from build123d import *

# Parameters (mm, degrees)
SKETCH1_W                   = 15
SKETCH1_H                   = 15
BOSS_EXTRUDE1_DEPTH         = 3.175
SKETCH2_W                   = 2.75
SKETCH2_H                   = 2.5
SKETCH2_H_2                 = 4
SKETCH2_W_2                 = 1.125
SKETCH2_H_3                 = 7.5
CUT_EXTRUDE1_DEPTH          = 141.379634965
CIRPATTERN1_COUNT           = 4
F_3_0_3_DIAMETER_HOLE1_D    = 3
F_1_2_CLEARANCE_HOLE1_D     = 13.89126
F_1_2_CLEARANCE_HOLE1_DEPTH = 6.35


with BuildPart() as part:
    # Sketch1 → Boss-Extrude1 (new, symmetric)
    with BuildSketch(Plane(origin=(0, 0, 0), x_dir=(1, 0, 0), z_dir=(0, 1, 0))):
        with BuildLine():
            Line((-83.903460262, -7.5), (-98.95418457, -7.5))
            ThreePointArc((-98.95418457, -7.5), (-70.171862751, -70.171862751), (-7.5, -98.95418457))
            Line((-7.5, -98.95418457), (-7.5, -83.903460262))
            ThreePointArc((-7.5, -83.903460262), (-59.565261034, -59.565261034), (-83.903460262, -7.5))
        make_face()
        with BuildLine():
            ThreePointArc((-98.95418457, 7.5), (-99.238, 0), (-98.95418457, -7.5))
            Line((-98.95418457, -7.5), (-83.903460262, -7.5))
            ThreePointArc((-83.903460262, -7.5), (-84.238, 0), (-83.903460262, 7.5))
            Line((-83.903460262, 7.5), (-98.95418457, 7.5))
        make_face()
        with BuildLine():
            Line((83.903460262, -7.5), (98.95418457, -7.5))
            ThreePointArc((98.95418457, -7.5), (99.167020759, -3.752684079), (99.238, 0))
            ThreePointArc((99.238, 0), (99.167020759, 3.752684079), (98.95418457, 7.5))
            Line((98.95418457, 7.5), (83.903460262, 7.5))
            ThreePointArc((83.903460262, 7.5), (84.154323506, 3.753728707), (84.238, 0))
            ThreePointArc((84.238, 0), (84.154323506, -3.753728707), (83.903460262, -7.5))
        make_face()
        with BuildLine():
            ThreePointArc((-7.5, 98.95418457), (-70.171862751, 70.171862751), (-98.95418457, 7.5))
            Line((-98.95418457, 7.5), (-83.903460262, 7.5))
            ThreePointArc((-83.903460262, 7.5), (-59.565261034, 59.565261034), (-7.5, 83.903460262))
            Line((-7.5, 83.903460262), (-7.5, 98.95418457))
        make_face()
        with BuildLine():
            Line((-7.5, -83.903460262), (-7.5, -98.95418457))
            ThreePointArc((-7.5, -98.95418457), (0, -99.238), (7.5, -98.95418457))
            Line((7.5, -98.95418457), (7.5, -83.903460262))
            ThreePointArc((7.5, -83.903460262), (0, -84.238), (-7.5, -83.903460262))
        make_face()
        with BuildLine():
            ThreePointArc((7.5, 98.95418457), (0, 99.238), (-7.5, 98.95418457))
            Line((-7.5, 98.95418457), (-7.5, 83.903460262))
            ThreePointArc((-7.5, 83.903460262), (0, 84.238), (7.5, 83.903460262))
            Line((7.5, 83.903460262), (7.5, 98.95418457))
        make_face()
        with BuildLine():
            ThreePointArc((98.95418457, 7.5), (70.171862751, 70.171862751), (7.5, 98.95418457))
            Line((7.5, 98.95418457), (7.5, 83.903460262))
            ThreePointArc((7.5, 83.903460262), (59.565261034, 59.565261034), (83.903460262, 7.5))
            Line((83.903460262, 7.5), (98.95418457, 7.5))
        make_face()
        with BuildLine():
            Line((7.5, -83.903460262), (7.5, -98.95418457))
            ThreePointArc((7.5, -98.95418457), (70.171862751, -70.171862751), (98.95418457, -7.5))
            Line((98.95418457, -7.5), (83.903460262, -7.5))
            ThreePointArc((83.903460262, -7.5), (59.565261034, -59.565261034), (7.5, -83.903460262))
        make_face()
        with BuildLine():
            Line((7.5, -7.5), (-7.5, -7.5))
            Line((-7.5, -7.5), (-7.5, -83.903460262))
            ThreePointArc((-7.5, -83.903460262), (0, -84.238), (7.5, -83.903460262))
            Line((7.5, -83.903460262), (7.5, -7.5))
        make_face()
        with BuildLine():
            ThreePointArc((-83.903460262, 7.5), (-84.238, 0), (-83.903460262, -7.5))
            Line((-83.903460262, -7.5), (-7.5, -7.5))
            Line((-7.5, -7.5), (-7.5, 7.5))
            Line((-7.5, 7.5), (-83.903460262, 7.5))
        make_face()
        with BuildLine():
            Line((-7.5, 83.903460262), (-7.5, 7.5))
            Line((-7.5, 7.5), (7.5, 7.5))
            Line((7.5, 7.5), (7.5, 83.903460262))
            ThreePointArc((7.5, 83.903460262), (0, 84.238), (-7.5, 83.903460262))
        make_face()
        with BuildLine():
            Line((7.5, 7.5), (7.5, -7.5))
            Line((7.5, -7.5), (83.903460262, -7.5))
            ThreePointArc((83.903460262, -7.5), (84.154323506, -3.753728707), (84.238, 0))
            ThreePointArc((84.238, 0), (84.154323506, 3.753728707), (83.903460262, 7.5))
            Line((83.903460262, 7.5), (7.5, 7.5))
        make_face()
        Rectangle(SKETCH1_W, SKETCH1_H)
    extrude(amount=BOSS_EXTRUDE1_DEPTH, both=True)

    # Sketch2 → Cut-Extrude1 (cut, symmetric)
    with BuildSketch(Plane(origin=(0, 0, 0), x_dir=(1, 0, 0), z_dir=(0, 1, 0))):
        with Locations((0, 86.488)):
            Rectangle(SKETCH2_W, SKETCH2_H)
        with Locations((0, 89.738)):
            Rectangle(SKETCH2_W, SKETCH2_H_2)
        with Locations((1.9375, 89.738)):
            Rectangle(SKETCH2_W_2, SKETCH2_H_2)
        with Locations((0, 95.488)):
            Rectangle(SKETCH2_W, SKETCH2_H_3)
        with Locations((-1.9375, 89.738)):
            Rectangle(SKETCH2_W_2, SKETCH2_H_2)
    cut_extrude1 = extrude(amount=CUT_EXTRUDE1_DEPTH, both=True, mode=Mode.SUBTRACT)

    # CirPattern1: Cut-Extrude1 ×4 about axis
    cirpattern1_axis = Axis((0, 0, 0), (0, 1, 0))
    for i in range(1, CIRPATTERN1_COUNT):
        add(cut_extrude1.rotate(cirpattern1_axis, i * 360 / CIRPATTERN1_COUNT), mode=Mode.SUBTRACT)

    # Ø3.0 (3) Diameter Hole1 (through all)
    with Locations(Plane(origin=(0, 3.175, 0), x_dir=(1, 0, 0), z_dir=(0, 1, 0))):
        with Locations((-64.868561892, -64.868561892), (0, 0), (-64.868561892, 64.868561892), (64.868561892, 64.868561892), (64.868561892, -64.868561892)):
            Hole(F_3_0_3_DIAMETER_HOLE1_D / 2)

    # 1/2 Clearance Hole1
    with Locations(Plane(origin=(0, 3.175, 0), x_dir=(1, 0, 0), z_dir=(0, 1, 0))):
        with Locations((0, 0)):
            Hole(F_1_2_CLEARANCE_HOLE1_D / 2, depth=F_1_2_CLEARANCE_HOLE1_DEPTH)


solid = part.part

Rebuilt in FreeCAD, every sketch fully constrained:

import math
import FreeCAD as App
import Part
import Sketcher


def add_polygon(sketch, points):
    """Adds a closed chain of lines whose ends are joined by coincident constraints."""
    first, n = sketch.GeometryCount, len(points)
    for a, b in zip(points, points[1:] + points[:1]):
        sketch.addGeometry(Part.LineSegment(App.Vector(*a, 0), App.Vector(*b, 0)), False)
    for i in range(n):
        sketch.addConstraint(Sketcher.Constraint("Coincident", first + i, 2, first + (i + 1) % n, 1))

doc = App.newDocument("Part")
body = doc.addObject("PartDesign::Body", "Body")

# Sketch on XZ plane
sketch1 = body.newObject("Sketcher::SketchObject", "Sketch")
sketch1.AttachmentSupport = (doc.getObject("XZ_Plane"), [""])
sketch1.MapMode = "FlatFace"
sketch1.addGeometry(Part.ArcOfCircle(Part.Circle(App.Vector(0, 0, 0), App.Vector(0, 0, 1), 99), math.radians(94), math.radians(176)), False)
sketch1.addGeometry(Part.ArcOfCircle(Part.Circle(App.Vector(0, 0, 0), App.Vector(0, 0, 1), 99), math.radians(85.67), math.radians(94.33)), False)
sketch1.addGeometry(Part.ArcOfCircle(Part.Circle(App.Vector(0, 0, 0), App.Vector(0, 0, 1), 99), math.radians(4), math.radians(86)), False)
sketch1.addGeometry(Part.ArcOfCircle(Part.Circle(App.Vector(0, 0, 0), App.Vector(0, 0, 1), 99), math.radians(0), math.radians(4.33)), False)
sketch1.addGeometry(Part.ArcOfCircle(Part.Circle(App.Vector(0, 0, 0), App.Vector(0, 0, 1), 99), math.radians(-4.33), math.radians(0)), False)
sketch1.addGeometry(Part.ArcOfCircle(Part.Circle(App.Vector(0, 0, 0), App.Vector(0, 0, 1), 99), math.radians(-86), math.radians(-4)), False)
sketch1.addGeometry(Part.ArcOfCircle(Part.Circle(App.Vector(0, 0, 0), App.Vector(0, 0, 1), 99), math.radians(-94.33), math.radians(-85.67)), False)
sketch1.addGeometry(Part.ArcOfCircle(Part.Circle(App.Vector(0, 0, 0), App.Vector(0, 0, 1), 99), math.radians(-176), math.radians(-94)), False)
sketch1.addGeometry(Part.ArcOfCircle(Part.Circle(App.Vector(0, 0, 0), App.Vector(0, 0, 1), 99), math.radians(175.67), math.radians(184.33)), False)
sketch1.addGeometry(Part.LineSegment(App.Vector(-84, 8, 0), App.Vector(-8, 8, 0)), False)
sketch1.addGeometry(Part.LineSegment(App.Vector(-8, 8, 0), App.Vector(-8, 84, 0)), False)
sketch1.addGeometry(Part.ArcOfCircle(Part.Circle(App.Vector(0, 0, 0), App.Vector(0, 0, 1), 84), math.radians(95), math.radians(175)), False)
sketch1.addGeometry(Part.LineSegment(App.Vector(8, 84, 0), App.Vector(8, 8, 0)), False)
sketch1.addGeometry(Part.LineSegment(App.Vector(8, 8, 0), App.Vector(84, 8, 0)), False)
sketch1.addGeometry(Part.ArcOfCircle(Part.Circle(App.Vector(0, 0, 0), App.Vector(0, 0, 1), 84), math.radians(5), math.radians(85)), False)
sketch1.addGeometry(Part.LineSegment(App.Vector(-8, -84, 0), App.Vector(-8, -8, 0)), False)
sketch1.addGeometry(Part.LineSegment(App.Vector(-8, -8, 0), App.Vector(-84, -8, 0)), False)
sketch1.addGeometry(Part.ArcOfCircle(Part.Circle(App.Vector(0, 0, 0), App.Vector(0, 0, 1), 84), math.radians(-175), math.radians(-95)), False)
sketch1.addGeometry(Part.LineSegment(App.Vector(84, -8, 0), App.Vector(8, -8, 0)), False)
sketch1.addGeometry(Part.LineSegment(App.Vector(8, -8, 0), App.Vector(8, -84, 0)), False)
sketch1.addGeometry(Part.ArcOfCircle(Part.Circle(App.Vector(0, 0, 0), App.Vector(0, 0, 1), 84), math.radians(-85), math.radians(-5)), False)
sketch1.addConstraint(Sketcher.Constraint("Tangent", 0, 1, 1, 2))
sketch1.addConstraint(Sketcher.Constraint("Tangent", 1, 1, 2, 2))
sketch1.addConstraint(Sketcher.Constraint("Tangent", 2, 1, 3, 2))
sketch1.addConstraint(Sketcher.Constraint("Tangent", 3, 1, 4, 2))
sketch1.addConstraint(Sketcher.Constraint("Tangent", 4, 1, 5, 2))
sketch1.addConstraint(Sketcher.Constraint("Tangent", 5, 1, 6, 2))
sketch1.addConstraint(Sketcher.Constraint("Tangent", 6, 1, 7, 2))
sketch1.addConstraint(Sketcher.Constraint("Tangent", 7, 1, 8, 2))
sketch1.addConstraint(Sketcher.Constraint("Tangent", 8, 1, 0, 2))
sketch1.addConstraint(Sketcher.Constraint("Coincident", 9, 2, 10, 1))
sketch1.addConstraint(Sketcher.Constraint("Coincident", 10, 2, 11, 1))
sketch1.addConstraint(Sketcher.Constraint("Coincident", 11, 2, 9, 1))
sketch1.addConstraint(Sketcher.Constraint("Coincident", 12, 2, 13, 1))
sketch1.addConstraint(Sketcher.Constraint("Coincident", 13, 2, 14, 1))
sketch1.addConstraint(Sketcher.Constraint("Coincident", 14, 2, 12, 1))
sketch1.addConstraint(Sketcher.Constraint("Coincident", 15, 2, 16, 1))
sketch1.addConstraint(Sketcher.Constraint("Coincident", 16, 2, 17, 1))
sketch1.addConstraint(Sketcher.Constraint("Coincident", 17, 2, 15, 1))
sketch1.addConstraint(Sketcher.Constraint("Coincident", 18, 2, 19, 1))
sketch1.addConstraint(Sketcher.Constraint("Coincident", 19, 2, 20, 1))
sketch1.addConstraint(Sketcher.Constraint("Coincident", 20, 2, 18, 1))
sketch1.addConstraint(Sketcher.Constraint("Horizontal", 9))
sketch1.addConstraint(Sketcher.Constraint("Vertical", 10))
sketch1.addConstraint(Sketcher.Constraint("Vertical", 12))
sketch1.addConstraint(Sketcher.Constraint("Horizontal", 13))
sketch1.addConstraint(Sketcher.Constraint("Vertical", 15))
sketch1.addConstraint(Sketcher.Constraint("Horizontal", 16))
sketch1.addConstraint(Sketcher.Constraint("Horizontal", 18))
sketch1.addConstraint(Sketcher.Constraint("Vertical", 19))
sketch1.addConstraint(Sketcher.Constraint("Coincident", 0, 3, -1, 1))
sketch1.addConstraint(Sketcher.Constraint("Coincident", 2, 3, -1, 1))
sketch1.addConstraint(Sketcher.Constraint("Coincident", 4, 3, -1, 1))
sketch1.addConstraint(Sketcher.Constraint("Coincident", 6, 3, -1, 1))
sketch1.addConstraint(Sketcher.Constraint("Coincident", 11, 3, -1, 1))
sketch1.addConstraint(Sketcher.Constraint("Coincident", 14, 3, -1, 1))
sketch1.addConstraint(Sketcher.Constraint("Coincident", 17, 3, -1, 1))
sketch1.addConstraint(Sketcher.Constraint("Coincident", 20, 3, -1, 1))
sketch1.addConstraint(Sketcher.Constraint("Equal", 11, 14))
sketch1.addConstraint(Sketcher.Constraint("Equal", 14, 17))
sketch1.addConstraint(Sketcher.Constraint("Equal", 17, 20))
sketch1.addConstraint(Sketcher.Constraint("Symmetric", 12, 2, 15, 2, -1, 1))
sketch1.addConstraint(Sketcher.Constraint("Symmetric", 9, 2, 18, 2, -1, 1))
sketch1.addConstraint(Sketcher.Constraint("Symmetric", 9, 2, 12, 2, -2))
sketch1.addConstraint(Sketcher.Constraint("PointOnObject", 3, 1, -1))
sketch1.addConstraint(Sketcher.Constraint("Horizontal", 0, 1, 1, 1))
sketch1.addConstraint(Sketcher.Constraint("Horizontal", 5, 1, 6, 1))
sketch1.addConstraint(Sketcher.Constraint("Horizontal", 4, 1, 7, 1))
sketch1.addConstraint(Sketcher.Constraint("Horizontal", 2, 1, 8, 1))
sketch1.addConstraint(Sketcher.Constraint("Horizontal", 8, 1, 9, 2))
sketch1.addConstraint(Sketcher.Constraint("Horizontal", 7, 1, 15, 2))
sketch1.addConstraint(Sketcher.Constraint("Vertical", 1, 1, 5, 1))
sketch1.addConstraint(Sketcher.Constraint("Vertical", 6, 1, 9, 2))
sketch1.addConstraint(Sketcher.Constraint("Equal", 18, 10))
sketch1.addConstraint(Sketcher.Constraint("Radius", 0, 99.238))
sketch1.addConstraint(Sketcher.Constraint("Radius", 11, 84.238))
sketch1.addConstraint(Sketcher.Constraint("DistanceX", 0, 1, 1, 1, 15.0))
pad1 = body.newObject("PartDesign::Pad", "Pad")
pad1.Profile = sketch1
pad1.Length = 6.35
pad1.Midplane = True

# Sketch on XZ plane
sketch2 = body.newObject("Sketcher::SketchObject", "Sketch001")
sketch2.AttachmentSupport = (doc.getObject("XZ_Plane"), [""])
sketch2.MapMode = "FlatFace"
add_polygon(sketch2, [(-1.4, -85.2), (1.4, -85.2), (1.4, -87.7), (2.5, -87.7), (2.5, -91.7), (1.4, -91.7), (1.4, -99.2), (-1.4, -99.2), (-1.4, -91.7), (-2.5, -91.7), (-2.5, -87.7), (-1.4, -87.7)])  # lines 0-11
sketch2.addConstraint(Sketcher.Constraint("Horizontal", 0))
sketch2.addConstraint(Sketcher.Constraint("Vertical", 1))
sketch2.addConstraint(Sketcher.Constraint("Horizontal", 2))
sketch2.addConstraint(Sketcher.Constraint("Vertical", 3))
sketch2.addConstraint(Sketcher.Constraint("Horizontal", 4))
sketch2.addConstraint(Sketcher.Constraint("Vertical", 5))
sketch2.addConstraint(Sketcher.Constraint("Horizontal", 6))
sketch2.addConstraint(Sketcher.Constraint("Vertical", 7))
sketch2.addConstraint(Sketcher.Constraint("Horizontal", 8))
sketch2.addConstraint(Sketcher.Constraint("Vertical", 9))
sketch2.addConstraint(Sketcher.Constraint("Horizontal", 10))
sketch2.addConstraint(Sketcher.Constraint("Vertical", 11))
sketch2.addConstraint(Sketcher.Constraint("Symmetric", 4, 2, 7, 2, -2))
sketch2.addConstraint(Sketcher.Constraint("Symmetric", 2, 2, 9, 2, -2))
sketch2.addConstraint(Sketcher.Constraint("Vertical", 1, 2, 4, 2))
sketch2.addConstraint(Sketcher.Constraint("Vertical", 7, 2, 10, 2))
sketch2.addConstraint(Sketcher.Constraint("DistanceY", 3, 2, 3, 1, 4.0))
sketch2.addConstraint(Sketcher.Constraint("DistanceY", 1, 2, 1, 1, 2.5))
sketch2.addConstraint(Sketcher.Constraint("DistanceY", 5, 2, 5, 1, 7.5))
sketch2.addConstraint(Sketcher.Constraint("DistanceX", 8, 2, 3, 2, 5.0))
sketch2.addConstraint(Sketcher.Constraint("DistanceX", 0, 1, 0, 2, 2.75))
sketch2.addConstraint(Sketcher.Constraint("DistanceY", 0, 2, -1, 1, 85.238))
pocket1 = body.newObject("PartDesign::Pocket", "Pocket")
pocket1.Profile = sketch2
pocket1.Length = 282.75927
pocket1.Midplane = True
doc.recompute()

polarpattern = body.newObject("PartDesign::PolarPattern", "PolarPattern")
polarpattern.Originals = [pocket1]
polarpattern.Axis = (doc.getObject("Y_Axis"), [""])
polarpattern.Angle = 360
polarpattern.Occurrences = 4
body.Tip = polarpattern

# Sketch on XZ plane
sketch3 = body.newObject("Sketcher::SketchObject", "Sketch002")
sketch3.AttachmentSupport = (doc.getObject("XZ_Plane"), [""])
sketch3.MapMode = "FlatFace"
sketch3.AttachmentOffset = App.Placement(App.Vector(0, 0, -3.175), App.Rotation())
sketch3.addGeometry(Part.Circle(App.Vector(-64.9, 64.9, 0), App.Vector(0, 0, 1), 1.5), False)
sketch3.addGeometry(Part.Circle(App.Vector(0, 0, 0), App.Vector(0, 0, 1), 1.5), False)
sketch3.addGeometry(Part.Circle(App.Vector(-64.9, -64.9, 0), App.Vector(0, 0, 1), 1.5), False)
sketch3.addGeometry(Part.Circle(App.Vector(64.9, -64.9, 0), App.Vector(0, 0, 1), 1.5), False)
sketch3.addGeometry(Part.Circle(App.Vector(64.9, 64.9, 0), App.Vector(0, 0, 1), 1.5), False)
sketch3.addConstraint(Sketcher.Constraint("Coincident", 1, 3, -1, 1))
sketch3.addConstraint(Sketcher.Constraint("Equal", 0, 1))
sketch3.addConstraint(Sketcher.Constraint("Equal", 1, 2))
sketch3.addConstraint(Sketcher.Constraint("Equal", 2, 3))
sketch3.addConstraint(Sketcher.Constraint("Equal", 3, 4))
sketch3.addConstraint(Sketcher.Constraint("Symmetric", 0, 3, 3, 3, -1, 1))
sketch3.addConstraint(Sketcher.Constraint("Symmetric", 2, 3, 4, 3, -1, 1))
sketch3.addConstraint(Sketcher.Constraint("Symmetric", 2, 3, 3, 3, -2))
sketch3.addConstraint(Sketcher.Constraint("Diameter", 0, 3.0))
sketch3.addConstraint(Sketcher.Constraint("DistanceX", 0, 3, -1, 1, 64.868562))
sketch3.addConstraint(Sketcher.Constraint("DistanceY", -1, 1, 0, 3, 64.868562))
doc.recompute()
hole = body.newObject("PartDesign::Hole", "Hole")
hole.Profile = sketch3
hole.ThreadType = "None"
hole.Diameter = 3
hole.DepthType = "ThroughAll"
hole.Reversed = True

# Sketch on XZ plane
sketch4 = body.newObject("Sketcher::SketchObject", "Sketch003")
sketch4.AttachmentSupport = (doc.getObject("XZ_Plane"), [""])
sketch4.MapMode = "FlatFace"
sketch4.AttachmentOffset = App.Placement(App.Vector(0, 0, -3.175), App.Rotation())
sketch4.addGeometry(Part.Circle(App.Vector(0, 0, 0), App.Vector(0, 0, 1), 7), False)
sketch4.addConstraint(Sketcher.Constraint("Coincident", 0, 3, -1, 1))
sketch4.addConstraint(Sketcher.Constraint("Diameter", 0, 13.89126))
doc.recompute()
hole2 = body.newObject("PartDesign::Hole", "Hole001")
hole2.Profile = sketch4
hole2.ThreadType = "None"
hole2.Diameter = 13.89126
hole2.DepthType = "Dimension"
hole2.Depth = 6.35
hole2.DrillPoint = "Flat"
hole2.Reversed = True

doc.recompute()
